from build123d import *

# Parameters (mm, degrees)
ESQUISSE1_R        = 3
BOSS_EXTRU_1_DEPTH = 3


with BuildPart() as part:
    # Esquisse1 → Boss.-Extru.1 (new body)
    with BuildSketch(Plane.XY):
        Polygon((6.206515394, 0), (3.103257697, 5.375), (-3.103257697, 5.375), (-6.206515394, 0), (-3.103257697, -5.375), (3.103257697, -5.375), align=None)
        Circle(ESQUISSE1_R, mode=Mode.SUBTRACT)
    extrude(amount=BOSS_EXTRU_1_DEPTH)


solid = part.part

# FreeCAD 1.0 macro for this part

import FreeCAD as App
import Part
import Sketcher
from FreeCAD import Vector
Q = App.Units.Quantity

doc = App.newDocument("Part")
params = doc.addObject("Spreadsheet::Sheet", "Params")
for row, (alias, value) in enumerate([
    ("sketch1_diameter", "6 mm"),
    ("pad1_length", "3 mm"),
], start=1):
    params.set(f"A{row}", alias)
    params.set(f"B{row}", "=" + value)
    params.setAlias(f"B{row}", alias)

body = doc.addObject("PartDesign::Body", "Body")

# Sketch on XY plane
sketch1 = doc.addObject("Sketcher::SketchObject", "Sketch")
body.addObject(sketch1)
sketch1.AttachmentSupport = (doc.XY_Plane, [""])
sketch1.MapMode = "FlatFace"
sketch1.addGeometry(Part.LineSegment(Vector(6.2, 0, 0), Vector(3.1, 5.4, 0)), False)
sketch1.addGeometry(Part.LineSegment(Vector(3.1, 5.4, 0), Vector(-3.1, 5.4, 0)), False)
sketch1.addGeometry(Part.LineSegment(Vector(-3.1, 5.4, 0), Vector(-6.2, 0, 0)), False)
sketch1.addGeometry(Part.LineSegment(Vector(-6.2, 0, 0), Vector(-3.1, -5.4, 0)), False)
sketch1.addGeometry(Part.LineSegment(Vector(-3.1, -5.4, 0), Vector(3.1, -5.4, 0)), False)
sketch1.addGeometry(Part.LineSegment(Vector(3.1, -5.4, 0), Vector(6.2, 0, 0)), False)
sketch1.addGeometry(Part.Circle(Vector(0, 0, 0), Vector(0, 0, 1), 3), False)
sketch1.addConstraint(Sketcher.Constraint("Coincident", 0, 2, 1, 1))
sketch1.addConstraint(Sketcher.Constraint("Coincident", 1, 2, 2, 1))
sketch1.addConstraint(Sketcher.Constraint("Coincident", 2, 2, 3, 1))
sketch1.addConstraint(Sketcher.Constraint("Coincident", 3, 2, 4, 1))
sketch1.addConstraint(Sketcher.Constraint("Coincident", 4, 2, 5, 1))
sketch1.addConstraint(Sketcher.Constraint("Coincident", 5, 2, 0, 1))
sketch1.addConstraint(Sketcher.Constraint("Horizontal", 1))
sketch1.addConstraint(Sketcher.Constraint("Horizontal", 4))
sketch1.addConstraint(Sketcher.Constraint("Coincident", 6, 3, -1, 1))
sketch1.addConstraint(Sketcher.Constraint("Symmetric", 0, 2, 3, 2, -1, 1))
sketch1.addConstraint(Sketcher.Constraint("Symmetric", 2, 2, 5, 2, -1, 1))
sketch1.addConstraint(Sketcher.Constraint("PointOnObject", 2, 2, -1))
sketch1.addConstraint(Sketcher.Constraint("Parallel", 2, 5))
sketch1.addConstraint(Sketcher.Constraint("Vertical", 1, 2, 3, 2))
sketch1.addConstraint(Sketcher.Constraint("Diameter", 6, Q("6 mm")))
sketch1.addConstraint(Sketcher.Constraint("Angle", 0, Q("120 deg")))
sketch1.addConstraint(Sketcher.Constraint("DistanceY", 3, 2, 1, 2, Q("10.75 mm")))
sketch1.addConstraint(Sketcher.Constraint("DistanceX", 1, 2, 1, 1, Q("6.206515 mm")))
sketch1.setExpression("Constraints[14]", "Params.sketch1_diameter")
pad1 = doc.addObject("PartDesign::Pad", "Pad")
body.addObject(pad1)
pad1.Profile = sketch1
pad1.setExpression("Length", "Params.pad1_length")

doc.recompute()
